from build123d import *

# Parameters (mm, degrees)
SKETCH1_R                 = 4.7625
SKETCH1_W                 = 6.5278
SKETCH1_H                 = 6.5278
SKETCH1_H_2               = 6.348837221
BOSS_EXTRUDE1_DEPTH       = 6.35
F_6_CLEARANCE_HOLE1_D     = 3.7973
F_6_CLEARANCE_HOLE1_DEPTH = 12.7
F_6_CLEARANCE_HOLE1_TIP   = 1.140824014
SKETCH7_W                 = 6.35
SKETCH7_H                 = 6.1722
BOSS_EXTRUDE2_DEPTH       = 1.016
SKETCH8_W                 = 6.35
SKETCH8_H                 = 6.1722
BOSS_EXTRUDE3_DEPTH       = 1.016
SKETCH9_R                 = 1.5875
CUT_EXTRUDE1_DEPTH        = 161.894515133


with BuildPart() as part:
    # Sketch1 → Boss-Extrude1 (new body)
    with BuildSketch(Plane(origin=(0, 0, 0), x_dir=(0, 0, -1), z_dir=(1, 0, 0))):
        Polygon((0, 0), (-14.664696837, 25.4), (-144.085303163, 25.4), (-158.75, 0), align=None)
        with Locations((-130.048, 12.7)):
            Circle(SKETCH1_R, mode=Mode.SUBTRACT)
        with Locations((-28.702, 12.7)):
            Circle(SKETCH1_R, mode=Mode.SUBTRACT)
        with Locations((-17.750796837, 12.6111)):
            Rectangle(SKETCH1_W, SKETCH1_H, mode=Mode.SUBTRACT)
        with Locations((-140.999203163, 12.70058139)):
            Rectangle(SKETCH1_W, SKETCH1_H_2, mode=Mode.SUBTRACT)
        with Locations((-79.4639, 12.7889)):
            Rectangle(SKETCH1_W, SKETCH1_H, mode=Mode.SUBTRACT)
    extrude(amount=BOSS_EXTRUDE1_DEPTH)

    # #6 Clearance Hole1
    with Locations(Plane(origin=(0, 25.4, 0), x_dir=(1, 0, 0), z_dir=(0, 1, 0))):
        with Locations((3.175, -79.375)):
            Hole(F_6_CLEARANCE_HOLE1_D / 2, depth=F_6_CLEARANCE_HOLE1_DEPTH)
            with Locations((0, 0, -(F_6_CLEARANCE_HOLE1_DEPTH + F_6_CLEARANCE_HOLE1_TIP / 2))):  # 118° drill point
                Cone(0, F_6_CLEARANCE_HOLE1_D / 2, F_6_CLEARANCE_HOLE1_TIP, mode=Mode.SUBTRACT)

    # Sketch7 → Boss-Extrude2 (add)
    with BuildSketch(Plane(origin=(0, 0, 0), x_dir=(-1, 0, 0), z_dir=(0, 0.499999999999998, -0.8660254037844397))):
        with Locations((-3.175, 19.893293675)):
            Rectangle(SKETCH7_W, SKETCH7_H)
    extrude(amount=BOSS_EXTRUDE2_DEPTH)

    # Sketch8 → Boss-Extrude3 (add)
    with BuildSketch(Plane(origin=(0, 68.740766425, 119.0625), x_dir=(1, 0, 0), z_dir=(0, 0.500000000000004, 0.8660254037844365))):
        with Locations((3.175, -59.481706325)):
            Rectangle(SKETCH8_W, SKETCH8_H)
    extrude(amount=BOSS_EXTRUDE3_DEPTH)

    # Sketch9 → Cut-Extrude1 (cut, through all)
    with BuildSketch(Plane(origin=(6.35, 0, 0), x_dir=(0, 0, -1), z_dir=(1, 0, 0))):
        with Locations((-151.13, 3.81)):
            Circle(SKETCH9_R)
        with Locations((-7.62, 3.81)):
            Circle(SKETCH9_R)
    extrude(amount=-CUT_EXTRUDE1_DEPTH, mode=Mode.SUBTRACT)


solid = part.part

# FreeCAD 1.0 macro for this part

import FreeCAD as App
import Part
import Sketcher
Q = App.Units.Quantity


def add_polygon(sketch, points):
    """Adds a closed chain of lines whose ends are joined by coincident constraints."""
    first, n = sketch.GeometryCount, len(points)
    for a, b in zip(points, points[1:] + points[:1]):
        sketch.addGeometry(Part.LineSegment(App.Vector(*a, 0), App.Vector(*b, 0)), False)
    for i in range(n):
        sketch.addConstraint(Sketcher.Constraint("Coincident", first + i, 2, first + (i + 1) % n, 1))

doc = App.newDocument("Part")
body = doc.addObject("PartDesign::Body", "Body")

sketch1 = doc.addObject("Sketcher::SketchObject", "Sketch")
body.addObject(sketch1)
sketch1.AttachmentSupport = (doc.YZ_Plane, [""])
sketch1.MapMode = "FlatFace"
add_polygon(sketch1, [(0, 0), (25.4, 14.664697), (25.4, 144.085303), (0, 158.75)])
add_polygon(sketch1, [(9.3472, 14.486897), (9.3472, 21.014697), (15.875, 21.014697), (15.875, 14.486897)])
add_polygon(sketch1, [(9.526163, 137.735303), (9.526163, 144.263103), (15.875, 144.263103), (15.875, 137.735303)])
sketch1.addGeometry(Part.Circle(App.Vector(12.7, 130.048, 0), App.Vector(0, 0, 1), 4.7625), False)
add_polygon(sketch1, [(9.525, 76.2), (9.525, 82.7278), (16.0528, 82.7278), (16.0528, 76.2)])
sketch1.addGeometry(Part.Circle(App.Vector(12.7, 28.702, 0), App.Vector(0, 0, 1), 4.7625), False)
sketch1.addConstraint(Sketcher.Constraint("Vertical", 1))
sketch1.addConstraint(Sketcher.Constraint("Vertical", 3))
sketch1.addConstraint(Sketcher.Constraint("Vertical", 4))
sketch1.addConstraint(Sketcher.Constraint("Horizontal", 5))
sketch1.addConstraint(Sketcher.Constraint("Vertical", 6))
sketch1.addConstraint(Sketcher.Constraint("Horizontal", 7))
sketch1.addConstraint(Sketcher.Constraint("Vertical", 8))
sketch1.addConstraint(Sketcher.Constraint("Horizontal", 9))
sketch1.addConstraint(Sketcher.Constraint("Vertical", 10))
sketch1.addConstraint(Sketcher.Constraint("Horizontal", 11))
sketch1.addConstraint(Sketcher.Constraint("Vertical", 13))
sketch1.addConstraint(Sketcher.Constraint("Horizontal", 14))
sketch1.addConstraint(Sketcher.Constraint("Vertical", 15))
sketch1.addConstraint(Sketcher.Constraint("Horizontal", 16))
sketch1.addConstraint(Sketcher.Constraint("Coincident", 3, 2, -1, 1))
sketch1.addConstraint(Sketcher.Constraint("Equal", 12, 17))
sketch1.addConstraint(Sketcher.Constraint("Vertical", 12, 3, 17, 3))
sketch1.addConstraint(Sketcher.Constraint("Vertical", 6, 2, 9, 2))
sketch1.addConstraint(Sketcher.Constraint("Equal", 7, 14))
sketch1.addConstraint(Sketcher.Constraint("Equal", 16, 4))
sketch1.addConstraint(Sketcher.Constraint("Equal", 6, 8))
sketch1.addConstraint(Sketcher.Constraint("Equal", 10, 13))
sketch1.addConstraint(Sketcher.Constraint("Equal", 0, 2))
sketch1.addConstraint(Sketcher.Constraint("Diameter", 12, Q("0.375 in")))
sketch1.addConstraint(Sketcher.Constraint("DistanceX", -1, 1, 0, 2, Q("1 in")))
sketch1.addConstraint(Sketcher.Constraint("DistanceY", -1, 1, 15, 2, Q("3 in")))
sketch1.addConstraint(Sketcher.Constraint("Angle", 0, Q("30 deg")))
sketch1.addConstraint(Sketcher.Constraint("DistanceY", 3, 2, 3, 1, Q("6.25 in")))
sketch1.addConstraint(Sketcher.Constraint("DistanceX", -1, 1, 12, 3, Q("0.5 in")))
sketch1.addConstraint(Sketcher.Constraint("DistanceX", 5, 1, 5, 2, Q("0.257 in")))
sketch1.addConstraint(Sketcher.Constraint("DistanceY", -1, 1, 12, 3, Q("5.12 in")))
sketch1.addConstraint(Sketcher.Constraint("DistanceY", -1, 1, 17, 3, Q("1.13 in")))
sketch1.addConstraint(Sketcher.Constraint("DistanceY", 0, 2, 4, 2, Q("0.25 in")))
sketch1.addConstraint(Sketcher.Constraint("DistanceY", 10, 2, 1, 2, Q("0.25 in")))
sketch1.addConstraint(Sketcher.Constraint("DistanceX", 13, 2, 10, 2, Q("0.25 in")))
sketch1.addConstraint(Sketcher.Constraint("DistanceX", -1, 1, 4, 2, Q("0.368 in")))
sketch1.addConstraint(Sketcher.Constraint("DistanceX", 9, 1, 9, 2, 6.348837))
pad1 = doc.addObject("PartDesign::Pad", "Pad")
body.addObject(pad1)
pad1.Profile = sketch1
pad1.Length = Q("0.25 in")

sketch2 = doc.addObject("Sketcher::SketchObject", "Sketch001")
body.addObject(sketch2)
sketch2.AttachmentSupport = (doc.XZ_Plane, [""])
sketch2.MapMode = "FlatFace"
sketch2.AttachmentOffset = App.Placement(App.Vector(0, 0, -1 * 25.4), App.Rotation())
sketch2.addGeometry(Part.Circle(App.Vector(3.175, 79.375, 0), App.Vector(0, 0, 1), 1.89865), False)
sketch2.addConstraint(Sketcher.Constraint("Diameter", 0, Q("0.1495 in")))
sketch2.addConstraint(Sketcher.Constraint("DistanceX", -1, 1, 0, 3, Q("0.125 in")))
sketch2.addConstraint(Sketcher.Constraint("DistanceY", -1, 1, 0, 3, Q("3.125 in")))
doc.recompute()
hole = doc.addObject("PartDesign::Hole", "Hole")
body.addObject(hole)
hole.Profile = sketch2
hole.ThreadType = "None"
hole.Diameter = Q("0.1495 in")
hole.DepthType = "Dimension"
hole.Depth = Q("0.5 in")
hole.DrillPoint = "Angled"
hole.DrillPointAngle = 118
hole.Reversed = True

sketch3 = doc.addObject("Sketcher::SketchObject", "Sketch002")
body.addObject(sketch3)
sketch3.Placement = App.Placement(App.Vector(0, 0, 0), App.Rotation(App.Vector(-1, 0, 0), App.Vector(0, 0.866025404, 0.5), App.Vector(0, 0.5, -0.866025404), "ZXY"))
add_polygon(sketch3, [(-6.35, 22.979394), (-6.35, 16.807194), (0, 16.807194), (0, 22.979394)])
sketch3.addConstraint(Sketcher.Constraint("Vertical", 0))
sketch3.addConstraint(Sketcher.Constraint("Horizontal", 1))
sketch3.addConstraint(Sketcher.Constraint("Vertical", 2))
sketch3.addConstraint(Sketcher.Constraint("Horizontal", 3))
sketch3.addConstraint(Sketcher.Constraint("PointOnObject", 1, 2, -2))
sketch3.addConstraint(Sketcher.Constraint("DistanceX", 1, 1, 1, 2, Q("0.25 in")))
sketch3.addConstraint(Sketcher.Constraint("DistanceY", 0, 2, 0, 1, Q("0.243 in")))
sketch3.addConstraint(Sketcher.Constraint("DistanceY", -1, 1, 0, 2, 16.807194))
pad2 = doc.addObject("PartDesign::Pad", "Pad001")
body.addObject(pad2)
pad2.Profile = sketch3
pad2.Length = Q("0.04 in")

sketch4 = doc.addObject("Sketcher::SketchObject", "Sketch003")
body.addObject(sketch4)
sketch4.Placement = App.Placement(App.Vector(0, 68.740766, 119.0625), App.Rotation(App.Vector(1, 0, 0), App.Vector(0, 0.866025404, -0.5), App.Vector(0, 0.5, 0.866025404), "ZXY"))
add_polygon(sketch4, [(0, -56.395606), (0, -62.567806), (6.35, -62.567806), (6.35, -56.395606)])
sketch4.addConstraint(Sketcher.Constraint("Vertical", 0))
sketch4.addConstraint(Sketcher.Constraint("Horizontal", 1))
sketch4.addConstraint(Sketcher.Constraint("Vertical", 2))
sketch4.addConstraint(Sketcher.Constraint("Horizontal", 3))
sketch4.addConstraint(Sketcher.Constraint("PointOnObject", 0, 2, -2))
sketch4.addConstraint(Sketcher.Constraint("DistanceX", 1, 1, 1, 2, Q("0.25 in")))
sketch4.addConstraint(Sketcher.Constraint("DistanceY", 0, 2, 0, 1, Q("0.243 in")))
sketch4.addConstraint(Sketcher.Constraint("DistanceY", 0, 2, -1, 1, 62.567806))
pad3 = doc.addObject("PartDesign::Pad", "Pad002")
body.addObject(pad3)
pad3.Profile = sketch4
pad3.Length = Q("0.04 in")

sketch5 = doc.addObject("Sketcher::SketchObject", "Sketch004")
body.addObject(sketch5)
sketch5.AttachmentSupport = (doc.YZ_Plane, [""])
sketch5.MapMode = "FlatFace"
sketch5.AttachmentOffset = App.Placement(App.Vector(0, 0, 0.25 * 25.4), App.Rotation())
sketch5.addGeometry(Part.Circle(App.Vector(3.81, 151.13, 0), App.Vector(0, 0, 1), 1.5875), False)
sketch5.addGeometry(Part.Circle(App.Vector(3.81, 7.62, 0), App.Vector(0, 0, 1), 1.5875), False)
sketch5.addConstraint(Sketcher.Constraint("Equal", 0, 1))
sketch5.addConstraint(Sketcher.Constraint("Vertical", 0, 3, 1, 3))
sketch5.addConstraint(Sketcher.Constraint("Diameter", 0, Q("0.125 in")))
sketch5.addConstraint(Sketcher.Constraint("DistanceY", -1, 1, 1, 3, Q("0.3 in")))
sketch5.addConstraint(Sketcher.Constraint("DistanceX", -1, 1, 0, 3, Q("0.15 in")))
sketch5.addConstraint(Sketcher.Constraint("DistanceY", -1, 1, 0, 3, Q("5.95 in")))
pocket1 = doc.addObject("PartDesign::Pocket", "Pocket")
body.addObject(pocket1)
pocket1.Profile = sketch5
pocket1.Type = "ThroughAll"

doc.recompute()
